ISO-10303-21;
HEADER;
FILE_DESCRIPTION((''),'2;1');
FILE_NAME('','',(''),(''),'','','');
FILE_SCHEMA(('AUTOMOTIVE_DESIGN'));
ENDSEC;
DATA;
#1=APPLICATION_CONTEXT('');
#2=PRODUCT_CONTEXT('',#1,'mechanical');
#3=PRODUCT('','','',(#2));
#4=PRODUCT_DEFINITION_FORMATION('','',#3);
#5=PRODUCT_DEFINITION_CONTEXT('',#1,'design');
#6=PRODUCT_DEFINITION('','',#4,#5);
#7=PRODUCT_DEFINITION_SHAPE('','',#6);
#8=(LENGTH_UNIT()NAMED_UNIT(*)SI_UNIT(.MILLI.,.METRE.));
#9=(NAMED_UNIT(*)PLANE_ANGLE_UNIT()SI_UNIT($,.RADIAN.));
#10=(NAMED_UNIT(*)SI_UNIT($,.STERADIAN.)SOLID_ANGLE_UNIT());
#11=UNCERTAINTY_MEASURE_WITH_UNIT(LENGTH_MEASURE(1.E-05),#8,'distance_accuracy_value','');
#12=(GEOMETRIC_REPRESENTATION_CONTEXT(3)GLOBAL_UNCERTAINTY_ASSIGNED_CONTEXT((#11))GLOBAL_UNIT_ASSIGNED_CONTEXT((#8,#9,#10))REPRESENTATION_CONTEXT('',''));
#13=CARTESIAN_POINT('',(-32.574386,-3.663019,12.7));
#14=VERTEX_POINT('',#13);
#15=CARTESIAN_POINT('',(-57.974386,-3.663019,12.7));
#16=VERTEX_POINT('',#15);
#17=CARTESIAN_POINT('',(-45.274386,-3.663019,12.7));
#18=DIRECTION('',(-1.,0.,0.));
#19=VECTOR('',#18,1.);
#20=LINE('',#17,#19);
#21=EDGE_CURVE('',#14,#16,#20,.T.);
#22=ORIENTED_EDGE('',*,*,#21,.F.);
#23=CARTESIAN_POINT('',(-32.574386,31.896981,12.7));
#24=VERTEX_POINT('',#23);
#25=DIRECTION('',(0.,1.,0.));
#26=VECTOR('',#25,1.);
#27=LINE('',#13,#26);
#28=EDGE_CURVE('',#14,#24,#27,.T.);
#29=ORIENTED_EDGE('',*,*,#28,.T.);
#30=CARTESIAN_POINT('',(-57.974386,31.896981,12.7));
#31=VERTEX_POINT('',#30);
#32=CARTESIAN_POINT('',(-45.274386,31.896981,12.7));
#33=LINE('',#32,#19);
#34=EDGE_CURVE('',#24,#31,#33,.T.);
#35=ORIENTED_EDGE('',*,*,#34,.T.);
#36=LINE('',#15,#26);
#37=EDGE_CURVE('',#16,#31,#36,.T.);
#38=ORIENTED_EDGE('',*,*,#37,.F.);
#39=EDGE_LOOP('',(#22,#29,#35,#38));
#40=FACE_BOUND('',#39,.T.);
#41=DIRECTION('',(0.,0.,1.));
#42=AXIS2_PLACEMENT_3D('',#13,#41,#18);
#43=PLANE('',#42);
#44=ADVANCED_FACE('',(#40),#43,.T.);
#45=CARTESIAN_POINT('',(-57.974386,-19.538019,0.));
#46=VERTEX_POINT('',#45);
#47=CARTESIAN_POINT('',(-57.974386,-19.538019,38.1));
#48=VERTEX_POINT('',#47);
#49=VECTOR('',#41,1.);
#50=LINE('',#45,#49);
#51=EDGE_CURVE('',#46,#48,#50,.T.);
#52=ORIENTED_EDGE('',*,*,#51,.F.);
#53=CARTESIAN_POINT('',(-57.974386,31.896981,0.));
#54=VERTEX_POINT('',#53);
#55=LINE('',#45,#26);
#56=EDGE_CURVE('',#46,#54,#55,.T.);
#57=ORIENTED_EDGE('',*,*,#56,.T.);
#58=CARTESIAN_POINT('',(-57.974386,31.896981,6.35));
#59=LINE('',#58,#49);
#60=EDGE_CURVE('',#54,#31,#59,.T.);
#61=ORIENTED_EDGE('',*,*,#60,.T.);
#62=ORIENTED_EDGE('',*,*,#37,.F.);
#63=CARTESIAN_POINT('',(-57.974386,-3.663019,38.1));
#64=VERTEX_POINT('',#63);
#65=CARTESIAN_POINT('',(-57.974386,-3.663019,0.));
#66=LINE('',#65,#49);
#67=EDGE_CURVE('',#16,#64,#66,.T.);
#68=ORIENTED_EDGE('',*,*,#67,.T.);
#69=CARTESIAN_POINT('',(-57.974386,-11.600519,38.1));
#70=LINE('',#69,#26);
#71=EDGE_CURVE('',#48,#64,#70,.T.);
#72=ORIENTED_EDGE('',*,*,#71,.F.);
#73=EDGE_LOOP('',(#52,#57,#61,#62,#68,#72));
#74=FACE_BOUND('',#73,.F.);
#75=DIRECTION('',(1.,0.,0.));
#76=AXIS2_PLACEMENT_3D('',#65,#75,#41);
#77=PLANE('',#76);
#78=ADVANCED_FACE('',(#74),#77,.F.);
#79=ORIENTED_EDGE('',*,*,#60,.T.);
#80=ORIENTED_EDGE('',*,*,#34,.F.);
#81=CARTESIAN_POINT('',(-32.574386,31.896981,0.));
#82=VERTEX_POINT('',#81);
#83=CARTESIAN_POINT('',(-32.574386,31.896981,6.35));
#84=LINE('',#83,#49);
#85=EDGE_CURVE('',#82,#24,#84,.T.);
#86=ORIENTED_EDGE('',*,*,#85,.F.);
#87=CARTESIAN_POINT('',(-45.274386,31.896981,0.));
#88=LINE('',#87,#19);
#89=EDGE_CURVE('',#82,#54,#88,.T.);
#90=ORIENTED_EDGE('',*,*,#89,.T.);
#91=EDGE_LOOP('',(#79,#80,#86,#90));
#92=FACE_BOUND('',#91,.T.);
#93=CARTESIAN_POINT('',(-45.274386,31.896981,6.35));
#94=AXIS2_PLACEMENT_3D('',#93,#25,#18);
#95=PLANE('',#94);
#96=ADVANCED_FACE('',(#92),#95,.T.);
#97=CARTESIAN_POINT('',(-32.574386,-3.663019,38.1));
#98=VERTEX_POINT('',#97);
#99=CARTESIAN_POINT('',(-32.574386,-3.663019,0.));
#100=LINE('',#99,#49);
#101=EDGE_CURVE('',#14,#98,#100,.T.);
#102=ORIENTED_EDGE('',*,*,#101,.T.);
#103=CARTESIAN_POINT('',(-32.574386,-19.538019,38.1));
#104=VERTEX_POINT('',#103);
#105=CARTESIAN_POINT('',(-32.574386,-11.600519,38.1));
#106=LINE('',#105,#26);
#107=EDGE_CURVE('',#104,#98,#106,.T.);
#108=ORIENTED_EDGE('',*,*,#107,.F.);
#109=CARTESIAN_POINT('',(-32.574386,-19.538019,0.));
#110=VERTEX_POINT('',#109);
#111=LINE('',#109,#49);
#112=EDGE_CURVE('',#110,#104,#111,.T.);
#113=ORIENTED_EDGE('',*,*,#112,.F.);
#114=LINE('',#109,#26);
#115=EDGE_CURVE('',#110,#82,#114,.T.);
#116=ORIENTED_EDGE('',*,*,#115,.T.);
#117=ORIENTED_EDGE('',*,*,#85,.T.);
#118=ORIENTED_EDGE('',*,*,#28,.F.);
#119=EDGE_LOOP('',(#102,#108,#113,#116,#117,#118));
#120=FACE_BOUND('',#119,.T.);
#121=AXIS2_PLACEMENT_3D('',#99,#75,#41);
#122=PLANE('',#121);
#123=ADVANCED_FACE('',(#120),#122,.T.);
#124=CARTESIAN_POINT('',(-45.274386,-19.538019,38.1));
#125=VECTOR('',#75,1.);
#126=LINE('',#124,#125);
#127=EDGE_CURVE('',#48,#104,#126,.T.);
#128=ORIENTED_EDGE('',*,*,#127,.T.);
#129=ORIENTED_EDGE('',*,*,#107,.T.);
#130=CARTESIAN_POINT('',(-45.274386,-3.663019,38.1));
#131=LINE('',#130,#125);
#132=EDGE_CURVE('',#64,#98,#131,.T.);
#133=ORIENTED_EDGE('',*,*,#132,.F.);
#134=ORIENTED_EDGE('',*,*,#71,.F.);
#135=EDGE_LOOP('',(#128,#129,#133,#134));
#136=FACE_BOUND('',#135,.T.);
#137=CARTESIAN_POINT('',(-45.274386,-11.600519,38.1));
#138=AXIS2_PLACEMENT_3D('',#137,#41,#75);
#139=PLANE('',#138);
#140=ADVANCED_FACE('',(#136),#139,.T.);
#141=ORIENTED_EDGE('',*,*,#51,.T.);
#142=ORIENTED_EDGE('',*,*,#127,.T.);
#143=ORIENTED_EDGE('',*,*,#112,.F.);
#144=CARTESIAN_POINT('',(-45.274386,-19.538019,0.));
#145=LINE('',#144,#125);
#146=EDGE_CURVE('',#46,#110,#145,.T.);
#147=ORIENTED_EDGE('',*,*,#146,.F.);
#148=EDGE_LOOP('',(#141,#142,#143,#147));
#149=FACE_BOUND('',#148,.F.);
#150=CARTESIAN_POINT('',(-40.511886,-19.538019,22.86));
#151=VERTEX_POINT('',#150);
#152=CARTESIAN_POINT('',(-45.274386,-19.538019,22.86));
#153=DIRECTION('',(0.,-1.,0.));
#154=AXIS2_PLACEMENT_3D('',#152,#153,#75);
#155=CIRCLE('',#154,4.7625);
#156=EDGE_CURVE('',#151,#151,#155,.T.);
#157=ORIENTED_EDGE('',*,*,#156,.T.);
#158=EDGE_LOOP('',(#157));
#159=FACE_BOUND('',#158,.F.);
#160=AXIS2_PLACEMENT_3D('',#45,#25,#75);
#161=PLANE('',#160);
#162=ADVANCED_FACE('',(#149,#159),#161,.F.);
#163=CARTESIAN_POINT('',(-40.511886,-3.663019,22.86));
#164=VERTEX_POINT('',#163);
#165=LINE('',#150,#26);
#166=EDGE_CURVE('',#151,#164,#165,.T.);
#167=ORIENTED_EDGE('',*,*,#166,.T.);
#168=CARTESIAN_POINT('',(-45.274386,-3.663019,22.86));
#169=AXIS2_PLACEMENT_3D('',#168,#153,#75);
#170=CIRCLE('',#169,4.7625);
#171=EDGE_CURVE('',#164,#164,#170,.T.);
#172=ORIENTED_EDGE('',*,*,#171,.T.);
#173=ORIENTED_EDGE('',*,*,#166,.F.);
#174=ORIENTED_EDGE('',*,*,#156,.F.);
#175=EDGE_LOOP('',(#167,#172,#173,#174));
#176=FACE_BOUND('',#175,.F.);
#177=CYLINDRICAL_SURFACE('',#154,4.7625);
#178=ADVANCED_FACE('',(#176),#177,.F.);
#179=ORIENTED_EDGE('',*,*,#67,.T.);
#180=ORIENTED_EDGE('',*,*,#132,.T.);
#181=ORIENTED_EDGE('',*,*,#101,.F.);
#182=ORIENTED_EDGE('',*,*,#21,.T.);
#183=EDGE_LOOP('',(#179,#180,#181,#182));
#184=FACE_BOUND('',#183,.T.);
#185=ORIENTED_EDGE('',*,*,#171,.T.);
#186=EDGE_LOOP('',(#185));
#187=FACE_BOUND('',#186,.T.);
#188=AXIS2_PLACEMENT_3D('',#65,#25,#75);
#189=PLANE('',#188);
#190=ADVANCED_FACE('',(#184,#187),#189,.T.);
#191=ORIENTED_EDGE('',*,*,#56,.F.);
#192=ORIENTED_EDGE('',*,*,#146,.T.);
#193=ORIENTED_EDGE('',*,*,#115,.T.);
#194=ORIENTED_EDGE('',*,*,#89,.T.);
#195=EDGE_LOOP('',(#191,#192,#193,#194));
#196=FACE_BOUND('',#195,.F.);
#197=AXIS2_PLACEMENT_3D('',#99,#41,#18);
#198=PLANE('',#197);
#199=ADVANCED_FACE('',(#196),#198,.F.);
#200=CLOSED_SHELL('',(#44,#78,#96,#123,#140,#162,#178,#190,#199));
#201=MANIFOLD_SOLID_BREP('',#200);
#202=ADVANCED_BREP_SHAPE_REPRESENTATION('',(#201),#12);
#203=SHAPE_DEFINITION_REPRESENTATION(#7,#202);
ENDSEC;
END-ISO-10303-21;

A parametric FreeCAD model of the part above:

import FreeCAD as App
import Part
import Sketcher
from FreeCAD import Vector
Q = App.Units.Quantity


def add_polygon(sketch, points):
    """Adds a closed chain of lines whose ends are joined by coincident constraints."""
    first, n = sketch.GeometryCount, len(points)
    for a, b in zip(points, points[1:] + points[:1]):
        sketch.addGeometry(Part.LineSegment(App.Vector(*a, 0), App.Vector(*b, 0)), False)
    for i in range(n):
        sketch.addConstraint(Sketcher.Constraint("Coincident", first + i, 2, first + (i + 1) % n, 1))

doc = App.newDocument("Part")
body = doc.addObject("PartDesign::Body", "Body")

sketch1 = doc.addObject("Sketcher::SketchObject", "Sketch")
body.addObject(sketch1)
sketch1.AttachmentSupport = (doc.XY_Plane, [""])
sketch1.MapMode = "FlatFace"
add_polygon(sketch1, [(-57.974386, -3.663019), (-57.974386, -19.538019), (-32.574386, -19.538019), (-32.574386, -3.663019)])
sketch1.addConstraint([
    Sketcher.Constraint("Vertical", 0),
    Sketcher.Constraint("Horizontal", 1),
    Sketcher.Constraint("Vertical", 2),
    Sketcher.Constraint("Horizontal", 3),
    Sketcher.Constraint("DistanceX", 1, 1, 1, 2, Q("1 in")),
    Sketcher.Constraint("DistanceY", 0, 2, 0, 1, Q("0.625 in")),
    Sketcher.Constraint("DistanceY", 0, 2, -1, 1, 19.538019),
    Sketcher.Constraint("DistanceX", 0, 2, -1, 1, 57.974386),
])
pad1 = doc.addObject("PartDesign::Pad", "Pad")
body.addObject(pad1)
pad1.Profile = sketch1
pad1.Length = Q("1.5 in")

sketch2 = doc.addObject("Sketcher::SketchObject", "Sketch001")
body.addObject(sketch2)
sketch2.AttachmentSupport = (doc.XZ_Plane, [""])
sketch2.MapMode = "FlatFace"
sketch2.AttachmentOffset = App.Placement(Vector(0, 0, 19.538019), App.Rotation())
sketch2.addGeometry(Part.Circle(Vector(-45.274386, 22.86, 0), Vector(0, 0, 1), 4.7625), False)
sketch2.addConstraint([
    Sketcher.Constraint("Diameter", 0, Q("0.375 in")),
    Sketcher.Constraint("DistanceY", -1, 1, 0, 3, Q("0.9 in")),
    Sketcher.Constraint("DistanceX", 0, 3, -1, 1, 45.274386),
])
pocket1 = doc.addObject("PartDesign::Pocket", "Pocket")
body.addObject(pocket1)
pocket1.Profile = sketch2
pocket1.Length = Q("10000 in")

sketch3 = doc.addObject("Sketcher::SketchObject", "Sketch002")
body.addObject(sketch3)
sketch3.AttachmentSupport = (doc.XZ_Plane, [""])
sketch3.MapMode = "FlatFace"
sketch3.AttachmentOffset = App.Placement(Vector(0, 0, 3.663019), App.Rotation())
add_polygon(sketch3, [(-32.574386, 12.7), (-32.574386, 0), (-57.974386, 0), (-57.974386, 12.7)])
sketch3.addConstraint([
    Sketcher.Constraint("Vertical", 0),
    Sketcher.Constraint("Horizontal", 1),
    Sketcher.Constraint("Vertical", 2),
    Sketcher.Constraint("Horizontal", 3),
    Sketcher.Constraint("PointOnObject", 0, 2, -1),
    Sketcher.Constraint("DistanceX", 1, 2, 1, 1, Q("1 in")),
    Sketcher.Constraint("DistanceY", 0, 2, 0, 1, Q("0.5 in")),
    Sketcher.Constraint("DistanceX", 0, 2, -1, 1, 32.574386),
])
pad2 = doc.addObject("PartDesign::Pad", "Pad001")
body.addObject(pad2)
pad2.Profile = sketch3
pad2.Length = Q("1.4 in")
pad2.Reversed = True

doc.recompute()
